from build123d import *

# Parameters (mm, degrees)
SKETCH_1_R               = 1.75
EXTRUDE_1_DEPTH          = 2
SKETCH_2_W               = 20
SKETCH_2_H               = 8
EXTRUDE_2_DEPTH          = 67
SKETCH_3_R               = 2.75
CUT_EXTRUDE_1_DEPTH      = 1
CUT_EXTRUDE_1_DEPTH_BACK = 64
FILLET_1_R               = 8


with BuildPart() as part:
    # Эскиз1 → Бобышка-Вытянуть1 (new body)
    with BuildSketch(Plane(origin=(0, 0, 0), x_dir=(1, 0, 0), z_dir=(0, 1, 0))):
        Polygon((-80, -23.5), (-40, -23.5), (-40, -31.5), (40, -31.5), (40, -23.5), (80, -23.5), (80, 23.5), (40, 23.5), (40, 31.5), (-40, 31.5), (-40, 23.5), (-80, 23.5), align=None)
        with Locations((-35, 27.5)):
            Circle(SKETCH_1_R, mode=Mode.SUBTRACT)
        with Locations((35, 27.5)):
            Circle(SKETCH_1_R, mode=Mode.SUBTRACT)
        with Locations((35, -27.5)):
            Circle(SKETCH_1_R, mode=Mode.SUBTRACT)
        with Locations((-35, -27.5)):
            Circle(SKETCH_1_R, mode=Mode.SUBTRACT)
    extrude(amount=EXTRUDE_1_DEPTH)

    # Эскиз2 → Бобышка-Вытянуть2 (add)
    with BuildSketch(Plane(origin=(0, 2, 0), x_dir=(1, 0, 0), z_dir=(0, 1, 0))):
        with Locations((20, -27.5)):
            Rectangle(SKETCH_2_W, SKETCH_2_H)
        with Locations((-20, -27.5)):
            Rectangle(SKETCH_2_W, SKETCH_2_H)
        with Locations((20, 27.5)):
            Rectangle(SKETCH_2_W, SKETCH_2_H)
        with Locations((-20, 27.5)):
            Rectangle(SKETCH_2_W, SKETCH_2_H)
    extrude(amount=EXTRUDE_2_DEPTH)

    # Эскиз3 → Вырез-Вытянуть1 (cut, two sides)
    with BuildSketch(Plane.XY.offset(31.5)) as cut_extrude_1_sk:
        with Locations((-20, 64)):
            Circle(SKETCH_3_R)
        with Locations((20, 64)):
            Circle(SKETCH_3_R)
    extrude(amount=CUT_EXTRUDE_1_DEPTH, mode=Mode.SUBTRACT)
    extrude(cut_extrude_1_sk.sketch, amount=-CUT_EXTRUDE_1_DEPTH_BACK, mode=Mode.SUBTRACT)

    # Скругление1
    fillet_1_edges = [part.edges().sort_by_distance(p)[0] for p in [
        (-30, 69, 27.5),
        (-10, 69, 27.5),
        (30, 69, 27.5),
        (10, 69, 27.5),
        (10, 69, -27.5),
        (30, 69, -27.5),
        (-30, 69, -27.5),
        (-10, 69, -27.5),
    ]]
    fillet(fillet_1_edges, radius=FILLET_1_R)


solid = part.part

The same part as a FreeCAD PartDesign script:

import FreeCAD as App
import Part
import Sketcher

V = App.Vector
Q = App.Units.Quantity


def edges_at(feature, points):
    """Names of the edges that pass closest to the given points."""
    edges = feature.Shape.Edges
    near = lambda p: min(range(len(edges)), key=lambda i: edges[i].distToShape(Part.Vertex(*p))[0])
    return sorted({f"Edge{near(p) + 1}" for p in points})

doc = App.newDocument("Part")
body = doc.addObject("PartDesign::Body", "Body")

# Sketch on XZ plane
sketch1 = body.newObject("Sketcher::SketchObject", "Sketch")
sketch1.AttachmentSupport = (doc.getObject("XZ_Plane"), [""])
sketch1.MapMode = "FlatFace"
sketch1.addGeometry([
    Part.LineSegment(V(-80, 23.5, 0), V(-40, 23.5, 0)),  # 0
    Part.LineSegment(V(-40, 23.5, 0), V(-40, 31.5, 0)),  # 1
    Part.LineSegment(V(-40, 31.5, 0), V(40, 31.5, 0)),  # 2
    Part.LineSegment(V(40, 31.5, 0), V(40, 23.5, 0)),  # 3
    Part.LineSegment(V(40, 23.5, 0), V(80, 23.5, 0)),  # 4
    Part.LineSegment(V(80, 23.5, 0), V(80, -23.5, 0)),  # 5
    Part.LineSegment(V(80, -23.5, 0), V(40, -23.5, 0)),  # 6
    Part.LineSegment(V(40, -23.5, 0), V(40, -31.5, 0)),  # 7
    Part.LineSegment(V(40, -31.5, 0), V(-40, -31.5, 0)),  # 8
    Part.LineSegment(V(-40, -31.5, 0), V(-40, -23.5, 0)),  # 9
    Part.LineSegment(V(-40, -23.5, 0), V(-80, -23.5, 0)),  # 10
    Part.LineSegment(V(-80, -23.5, 0), V(-80, 23.5, 0)),  # 11
    Part.Circle(V(-35, 27.5, 0), V(0, 0, 1), 1.8),  # 12
    Part.Circle(V(35, 27.5, 0), V(0, 0, 1), 1.8),  # 13
    Part.Circle(V(-35, -27.5, 0), V(0, 0, 1), 1.8),  # 14
    Part.Circle(V(35, -27.5, 0), V(0, 0, 1), 1.8),  # 15
], False)
sketch1.addConstraint([
    Sketcher.Constraint("Coincident", 0, 2, 1, 1),
    Sketcher.Constraint("Coincident", 1, 2, 2, 1),
    Sketcher.Constraint("Coincident", 2, 2, 3, 1),
    Sketcher.Constraint("Coincident", 3, 2, 4, 1),
    Sketcher.Constraint("Coincident", 4, 2, 5, 1),
    Sketcher.Constraint("Coincident", 5, 2, 6, 1),
    Sketcher.Constraint("Coincident", 6, 2, 7, 1),
    Sketcher.Constraint("Coincident", 7, 2, 8, 1),
    Sketcher.Constraint("Coincident", 8, 2, 9, 1),
    Sketcher.Constraint("Coincident", 9, 2, 10, 1),
    Sketcher.Constraint("Coincident", 10, 2, 11, 1),
    Sketcher.Constraint("Coincident", 11, 2, 0, 1),
    Sketcher.Constraint("Horizontal", 0),
    Sketcher.Constraint("Vertical", 1),
    Sketcher.Constraint("Horizontal", 2),
    Sketcher.Constraint("Vertical", 3),
    Sketcher.Constraint("Horizontal", 4),
    Sketcher.Constraint("Vertical", 5),
    Sketcher.Constraint("Horizontal", 6),
    Sketcher.Constraint("Vertical", 7),
    Sketcher.Constraint("Horizontal", 8),
    Sketcher.Constraint("Vertical", 9),
    Sketcher.Constraint("Horizontal", 10),
    Sketcher.Constraint("Vertical", 11),
    Sketcher.Constraint("Equal", 12, 13),
    Sketcher.Constraint("Equal", 13, 14),
    Sketcher.Constraint("Equal", 14, 15),
    Sketcher.Constraint("Symmetric", 13, 3, 14, 3, -1, 1),
    Sketcher.Constraint("Symmetric", 12, 3, 15, 3, -1, 1),
    Sketcher.Constraint("Symmetric", 0, 2, 6, 2, -1, 1),
    Sketcher.Constraint("Symmetric", 2, 2, 8, 2, -1, 1),
    Sketcher.Constraint("Symmetric", 4, 2, 10, 2, -1, 1),
    Sketcher.Constraint("Symmetric", 12, 3, 13, 3, -2),
    Sketcher.Constraint("Symmetric", 0, 2, 3, 2, -2),
    Sketcher.Constraint("Diameter", 12, Q("3.5 mm")),
    Sketcher.Constraint("DistanceX", 0, 1, 0, 2, Q("40 mm")),
    Sketcher.Constraint("DistanceX", 2, 1, 2, 2, Q("80 mm")),
    Sketcher.Constraint("DistanceY", 1, 1, 1, 2, Q("8 mm")),
    Sketcher.Constraint("DistanceY", 5, 2, 5, 1, Q("47 mm")),
    Sketcher.Constraint("DistanceX", 12, 3, -1, 1, Q("35 mm")),
    Sketcher.Constraint("DistanceY", 14, 3, 12, 3, Q("55 mm")),
])
pad1 = body.newObject("PartDesign::Pad", "Pad")
pad1.Profile = sketch1
pad1.Length = 2
pad1.Reversed = True

# Sketch on XZ plane
sketch2 = body.newObject("Sketcher::SketchObject", "Sketch001")
sketch2.AttachmentSupport = (doc.getObject("XZ_Plane"), [""])
sketch2.MapMode = "FlatFace"
sketch2.AttachmentOffset = App.Placement(V(0, 0, -2), App.Rotation())
sketch2.addGeometry([
    Part.LineSegment(V(10, 24, 0), V(10, 32, 0)),  # 0
    Part.LineSegment(V(10, 32, 0), V(30, 32, 0)),  # 1
    Part.LineSegment(V(30, 32, 0), V(30, 24, 0)),  # 2
    Part.LineSegment(V(30, 24, 0), V(10, 24, 0)),  # 3
    Part.LineSegment(V(-30, 24, 0), V(-30, 32, 0)),  # 4
    Part.LineSegment(V(-30, 32, 0), V(-10, 32, 0)),  # 5
    Part.LineSegment(V(-10, 32, 0), V(-10, 24, 0)),  # 6
    Part.LineSegment(V(-10, 24, 0), V(-30, 24, 0)),  # 7
    Part.LineSegment(V(10, -32, 0), V(10, -24, 0)),  # 8
    Part.LineSegment(V(10, -24, 0), V(30, -24, 0)),  # 9
    Part.LineSegment(V(30, -24, 0), V(30, -32, 0)),  # 10
    Part.LineSegment(V(30, -32, 0), V(10, -32, 0)),  # 11
    Part.LineSegment(V(-30, -32, 0), V(-30, -24, 0)),  # 12
    Part.LineSegment(V(-30, -24, 0), V(-10, -24, 0)),  # 13
    Part.LineSegment(V(-10, -24, 0), V(-10, -32, 0)),  # 14
    Part.LineSegment(V(-10, -32, 0), V(-30, -32, 0)),  # 15
], False)
sketch2.addConstraint([
    Sketcher.Constraint("Coincident", 0, 2, 1, 1),
    Sketcher.Constraint("Coincident", 1, 2, 2, 1),
    Sketcher.Constraint("Coincident", 2, 2, 3, 1),
    Sketcher.Constraint("Coincident", 3, 2, 0, 1),
    Sketcher.Constraint("Coincident", 4, 2, 5, 1),
    Sketcher.Constraint("Coincident", 5, 2, 6, 1),
    Sketcher.Constraint("Coincident", 6, 2, 7, 1),
    Sketcher.Constraint("Coincident", 7, 2, 4, 1),
    Sketcher.Constraint("Coincident", 8, 2, 9, 1),
    Sketcher.Constraint("Coincident", 9, 2, 10, 1),
    Sketcher.Constraint("Coincident", 10, 2, 11, 1),
    Sketcher.Constraint("Coincident", 11, 2, 8, 1),
    Sketcher.Constraint("Coincident", 12, 2, 13, 1),
    Sketcher.Constraint("Coincident", 13, 2, 14, 1),
    Sketcher.Constraint("Coincident", 14, 2, 15, 1),
    Sketcher.Constraint("Coincident", 15, 2, 12, 1),
    Sketcher.Constraint("Vertical", 0),
    Sketcher.Constraint("Horizontal", 1),
    Sketcher.Constraint("Vertical", 2),
    Sketcher.Constraint("Horizontal", 3),
    Sketcher.Constraint("Vertical", 4),
    Sketcher.Constraint("Horizontal", 5),
    Sketcher.Constraint("Vertical", 6),
    Sketcher.Constraint("Horizontal", 7),
    Sketcher.Constraint("Vertical", 8),
    Sketcher.Constraint("Horizontal", 9),
    Sketcher.Constraint("Vertical", 10),
    Sketcher.Constraint("Horizontal", 11),
    Sketcher.Constraint("Vertical", 12),
    Sketcher.Constraint("Horizontal", 13),
    Sketcher.Constraint("Vertical", 14),
    Sketcher.Constraint("Horizontal", 15),
    Sketcher.Constraint("Symmetric", 6, 2, 8, 2, -1, 1),
    Sketcher.Constraint("Symmetric", 4, 2, 10, 2, -1, 1),
    Sketcher.Constraint("Symmetric", 2, 2, 12, 2, -1, 1),
    Sketcher.Constraint("Symmetric", 0, 2, 14, 2, -1, 1),
    Sketcher.Constraint("Symmetric", 1, 2, 4, 2, -2),
    Sketcher.Constraint("Symmetric", 3, 2, 6, 2, -2),
    Sketcher.Constraint("DistanceX", 1, 1, 1, 2, Q("20 mm")),
    Sketcher.Constraint("DistanceY", 0, 1, 0, 2, Q("8 mm")),
    Sketcher.Constraint("DistanceX", -1, 1, 0, 2, Q("10 mm")),
    Sketcher.Constraint("DistanceY", 8, 2, 3, 2, Q("47 mm")),
])
pad2 = body.newObject("PartDesign::Pad", "Pad001")
pad2.Profile = sketch2
pad2.Length = 67
pad2.Reversed = True

# Sketch on XY plane
sketch3 = body.newObject("Sketcher::SketchObject", "Sketch002")
sketch3.AttachmentSupport = (doc.getObject("XY_Plane"), [""])
sketch3.MapMode = "FlatFace"
sketch3.AttachmentOffset = App.Placement(V(0, 0, 31.5), App.Rotation())
sketch3.addGeometry([
    Part.Circle(V(-20, 64, 0), V(0, 0, 1), 2.8),
    Part.Circle(V(20, 64, 0), V(0, 0, 1), 2.8),
], False)
sketch3.addConstraint([
    Sketcher.Constraint("Equal", 0, 1),
    Sketcher.Constraint("Symmetric", 0, 3, 1, 3, -2),
    Sketcher.Constraint("Diameter", 0, Q("5.5 mm")),
    Sketcher.Constraint("DistanceX", 0, 3, -1, 1, Q("20 mm")),
    Sketcher.Constraint("DistanceY", -1, 1, 0, 3, Q("64 mm")),
])
pocket1 = body.newObject("PartDesign::Pocket", "Pocket")
pocket1.Profile = sketch3
pocket1.Type = "ThroughAll"
pocket1.Midplane = True
doc.recompute()

fillet = body.newObject("PartDesign::Fillet", "Fillet")
fillet.Base = (pocket1, edges_at(pocket1, [
    (-30, 69, 27.5),
    (-10, 69, 27.5),
    (30, 69, 27.5),
    (10, 69, 27.5),
    (10, 69, -27.5),
    (30, 69, -27.5),
    (-30, 69, -27.5),
    (-10, 69, -27.5),
]))
fillet.Radius = 8

doc.recompute()
